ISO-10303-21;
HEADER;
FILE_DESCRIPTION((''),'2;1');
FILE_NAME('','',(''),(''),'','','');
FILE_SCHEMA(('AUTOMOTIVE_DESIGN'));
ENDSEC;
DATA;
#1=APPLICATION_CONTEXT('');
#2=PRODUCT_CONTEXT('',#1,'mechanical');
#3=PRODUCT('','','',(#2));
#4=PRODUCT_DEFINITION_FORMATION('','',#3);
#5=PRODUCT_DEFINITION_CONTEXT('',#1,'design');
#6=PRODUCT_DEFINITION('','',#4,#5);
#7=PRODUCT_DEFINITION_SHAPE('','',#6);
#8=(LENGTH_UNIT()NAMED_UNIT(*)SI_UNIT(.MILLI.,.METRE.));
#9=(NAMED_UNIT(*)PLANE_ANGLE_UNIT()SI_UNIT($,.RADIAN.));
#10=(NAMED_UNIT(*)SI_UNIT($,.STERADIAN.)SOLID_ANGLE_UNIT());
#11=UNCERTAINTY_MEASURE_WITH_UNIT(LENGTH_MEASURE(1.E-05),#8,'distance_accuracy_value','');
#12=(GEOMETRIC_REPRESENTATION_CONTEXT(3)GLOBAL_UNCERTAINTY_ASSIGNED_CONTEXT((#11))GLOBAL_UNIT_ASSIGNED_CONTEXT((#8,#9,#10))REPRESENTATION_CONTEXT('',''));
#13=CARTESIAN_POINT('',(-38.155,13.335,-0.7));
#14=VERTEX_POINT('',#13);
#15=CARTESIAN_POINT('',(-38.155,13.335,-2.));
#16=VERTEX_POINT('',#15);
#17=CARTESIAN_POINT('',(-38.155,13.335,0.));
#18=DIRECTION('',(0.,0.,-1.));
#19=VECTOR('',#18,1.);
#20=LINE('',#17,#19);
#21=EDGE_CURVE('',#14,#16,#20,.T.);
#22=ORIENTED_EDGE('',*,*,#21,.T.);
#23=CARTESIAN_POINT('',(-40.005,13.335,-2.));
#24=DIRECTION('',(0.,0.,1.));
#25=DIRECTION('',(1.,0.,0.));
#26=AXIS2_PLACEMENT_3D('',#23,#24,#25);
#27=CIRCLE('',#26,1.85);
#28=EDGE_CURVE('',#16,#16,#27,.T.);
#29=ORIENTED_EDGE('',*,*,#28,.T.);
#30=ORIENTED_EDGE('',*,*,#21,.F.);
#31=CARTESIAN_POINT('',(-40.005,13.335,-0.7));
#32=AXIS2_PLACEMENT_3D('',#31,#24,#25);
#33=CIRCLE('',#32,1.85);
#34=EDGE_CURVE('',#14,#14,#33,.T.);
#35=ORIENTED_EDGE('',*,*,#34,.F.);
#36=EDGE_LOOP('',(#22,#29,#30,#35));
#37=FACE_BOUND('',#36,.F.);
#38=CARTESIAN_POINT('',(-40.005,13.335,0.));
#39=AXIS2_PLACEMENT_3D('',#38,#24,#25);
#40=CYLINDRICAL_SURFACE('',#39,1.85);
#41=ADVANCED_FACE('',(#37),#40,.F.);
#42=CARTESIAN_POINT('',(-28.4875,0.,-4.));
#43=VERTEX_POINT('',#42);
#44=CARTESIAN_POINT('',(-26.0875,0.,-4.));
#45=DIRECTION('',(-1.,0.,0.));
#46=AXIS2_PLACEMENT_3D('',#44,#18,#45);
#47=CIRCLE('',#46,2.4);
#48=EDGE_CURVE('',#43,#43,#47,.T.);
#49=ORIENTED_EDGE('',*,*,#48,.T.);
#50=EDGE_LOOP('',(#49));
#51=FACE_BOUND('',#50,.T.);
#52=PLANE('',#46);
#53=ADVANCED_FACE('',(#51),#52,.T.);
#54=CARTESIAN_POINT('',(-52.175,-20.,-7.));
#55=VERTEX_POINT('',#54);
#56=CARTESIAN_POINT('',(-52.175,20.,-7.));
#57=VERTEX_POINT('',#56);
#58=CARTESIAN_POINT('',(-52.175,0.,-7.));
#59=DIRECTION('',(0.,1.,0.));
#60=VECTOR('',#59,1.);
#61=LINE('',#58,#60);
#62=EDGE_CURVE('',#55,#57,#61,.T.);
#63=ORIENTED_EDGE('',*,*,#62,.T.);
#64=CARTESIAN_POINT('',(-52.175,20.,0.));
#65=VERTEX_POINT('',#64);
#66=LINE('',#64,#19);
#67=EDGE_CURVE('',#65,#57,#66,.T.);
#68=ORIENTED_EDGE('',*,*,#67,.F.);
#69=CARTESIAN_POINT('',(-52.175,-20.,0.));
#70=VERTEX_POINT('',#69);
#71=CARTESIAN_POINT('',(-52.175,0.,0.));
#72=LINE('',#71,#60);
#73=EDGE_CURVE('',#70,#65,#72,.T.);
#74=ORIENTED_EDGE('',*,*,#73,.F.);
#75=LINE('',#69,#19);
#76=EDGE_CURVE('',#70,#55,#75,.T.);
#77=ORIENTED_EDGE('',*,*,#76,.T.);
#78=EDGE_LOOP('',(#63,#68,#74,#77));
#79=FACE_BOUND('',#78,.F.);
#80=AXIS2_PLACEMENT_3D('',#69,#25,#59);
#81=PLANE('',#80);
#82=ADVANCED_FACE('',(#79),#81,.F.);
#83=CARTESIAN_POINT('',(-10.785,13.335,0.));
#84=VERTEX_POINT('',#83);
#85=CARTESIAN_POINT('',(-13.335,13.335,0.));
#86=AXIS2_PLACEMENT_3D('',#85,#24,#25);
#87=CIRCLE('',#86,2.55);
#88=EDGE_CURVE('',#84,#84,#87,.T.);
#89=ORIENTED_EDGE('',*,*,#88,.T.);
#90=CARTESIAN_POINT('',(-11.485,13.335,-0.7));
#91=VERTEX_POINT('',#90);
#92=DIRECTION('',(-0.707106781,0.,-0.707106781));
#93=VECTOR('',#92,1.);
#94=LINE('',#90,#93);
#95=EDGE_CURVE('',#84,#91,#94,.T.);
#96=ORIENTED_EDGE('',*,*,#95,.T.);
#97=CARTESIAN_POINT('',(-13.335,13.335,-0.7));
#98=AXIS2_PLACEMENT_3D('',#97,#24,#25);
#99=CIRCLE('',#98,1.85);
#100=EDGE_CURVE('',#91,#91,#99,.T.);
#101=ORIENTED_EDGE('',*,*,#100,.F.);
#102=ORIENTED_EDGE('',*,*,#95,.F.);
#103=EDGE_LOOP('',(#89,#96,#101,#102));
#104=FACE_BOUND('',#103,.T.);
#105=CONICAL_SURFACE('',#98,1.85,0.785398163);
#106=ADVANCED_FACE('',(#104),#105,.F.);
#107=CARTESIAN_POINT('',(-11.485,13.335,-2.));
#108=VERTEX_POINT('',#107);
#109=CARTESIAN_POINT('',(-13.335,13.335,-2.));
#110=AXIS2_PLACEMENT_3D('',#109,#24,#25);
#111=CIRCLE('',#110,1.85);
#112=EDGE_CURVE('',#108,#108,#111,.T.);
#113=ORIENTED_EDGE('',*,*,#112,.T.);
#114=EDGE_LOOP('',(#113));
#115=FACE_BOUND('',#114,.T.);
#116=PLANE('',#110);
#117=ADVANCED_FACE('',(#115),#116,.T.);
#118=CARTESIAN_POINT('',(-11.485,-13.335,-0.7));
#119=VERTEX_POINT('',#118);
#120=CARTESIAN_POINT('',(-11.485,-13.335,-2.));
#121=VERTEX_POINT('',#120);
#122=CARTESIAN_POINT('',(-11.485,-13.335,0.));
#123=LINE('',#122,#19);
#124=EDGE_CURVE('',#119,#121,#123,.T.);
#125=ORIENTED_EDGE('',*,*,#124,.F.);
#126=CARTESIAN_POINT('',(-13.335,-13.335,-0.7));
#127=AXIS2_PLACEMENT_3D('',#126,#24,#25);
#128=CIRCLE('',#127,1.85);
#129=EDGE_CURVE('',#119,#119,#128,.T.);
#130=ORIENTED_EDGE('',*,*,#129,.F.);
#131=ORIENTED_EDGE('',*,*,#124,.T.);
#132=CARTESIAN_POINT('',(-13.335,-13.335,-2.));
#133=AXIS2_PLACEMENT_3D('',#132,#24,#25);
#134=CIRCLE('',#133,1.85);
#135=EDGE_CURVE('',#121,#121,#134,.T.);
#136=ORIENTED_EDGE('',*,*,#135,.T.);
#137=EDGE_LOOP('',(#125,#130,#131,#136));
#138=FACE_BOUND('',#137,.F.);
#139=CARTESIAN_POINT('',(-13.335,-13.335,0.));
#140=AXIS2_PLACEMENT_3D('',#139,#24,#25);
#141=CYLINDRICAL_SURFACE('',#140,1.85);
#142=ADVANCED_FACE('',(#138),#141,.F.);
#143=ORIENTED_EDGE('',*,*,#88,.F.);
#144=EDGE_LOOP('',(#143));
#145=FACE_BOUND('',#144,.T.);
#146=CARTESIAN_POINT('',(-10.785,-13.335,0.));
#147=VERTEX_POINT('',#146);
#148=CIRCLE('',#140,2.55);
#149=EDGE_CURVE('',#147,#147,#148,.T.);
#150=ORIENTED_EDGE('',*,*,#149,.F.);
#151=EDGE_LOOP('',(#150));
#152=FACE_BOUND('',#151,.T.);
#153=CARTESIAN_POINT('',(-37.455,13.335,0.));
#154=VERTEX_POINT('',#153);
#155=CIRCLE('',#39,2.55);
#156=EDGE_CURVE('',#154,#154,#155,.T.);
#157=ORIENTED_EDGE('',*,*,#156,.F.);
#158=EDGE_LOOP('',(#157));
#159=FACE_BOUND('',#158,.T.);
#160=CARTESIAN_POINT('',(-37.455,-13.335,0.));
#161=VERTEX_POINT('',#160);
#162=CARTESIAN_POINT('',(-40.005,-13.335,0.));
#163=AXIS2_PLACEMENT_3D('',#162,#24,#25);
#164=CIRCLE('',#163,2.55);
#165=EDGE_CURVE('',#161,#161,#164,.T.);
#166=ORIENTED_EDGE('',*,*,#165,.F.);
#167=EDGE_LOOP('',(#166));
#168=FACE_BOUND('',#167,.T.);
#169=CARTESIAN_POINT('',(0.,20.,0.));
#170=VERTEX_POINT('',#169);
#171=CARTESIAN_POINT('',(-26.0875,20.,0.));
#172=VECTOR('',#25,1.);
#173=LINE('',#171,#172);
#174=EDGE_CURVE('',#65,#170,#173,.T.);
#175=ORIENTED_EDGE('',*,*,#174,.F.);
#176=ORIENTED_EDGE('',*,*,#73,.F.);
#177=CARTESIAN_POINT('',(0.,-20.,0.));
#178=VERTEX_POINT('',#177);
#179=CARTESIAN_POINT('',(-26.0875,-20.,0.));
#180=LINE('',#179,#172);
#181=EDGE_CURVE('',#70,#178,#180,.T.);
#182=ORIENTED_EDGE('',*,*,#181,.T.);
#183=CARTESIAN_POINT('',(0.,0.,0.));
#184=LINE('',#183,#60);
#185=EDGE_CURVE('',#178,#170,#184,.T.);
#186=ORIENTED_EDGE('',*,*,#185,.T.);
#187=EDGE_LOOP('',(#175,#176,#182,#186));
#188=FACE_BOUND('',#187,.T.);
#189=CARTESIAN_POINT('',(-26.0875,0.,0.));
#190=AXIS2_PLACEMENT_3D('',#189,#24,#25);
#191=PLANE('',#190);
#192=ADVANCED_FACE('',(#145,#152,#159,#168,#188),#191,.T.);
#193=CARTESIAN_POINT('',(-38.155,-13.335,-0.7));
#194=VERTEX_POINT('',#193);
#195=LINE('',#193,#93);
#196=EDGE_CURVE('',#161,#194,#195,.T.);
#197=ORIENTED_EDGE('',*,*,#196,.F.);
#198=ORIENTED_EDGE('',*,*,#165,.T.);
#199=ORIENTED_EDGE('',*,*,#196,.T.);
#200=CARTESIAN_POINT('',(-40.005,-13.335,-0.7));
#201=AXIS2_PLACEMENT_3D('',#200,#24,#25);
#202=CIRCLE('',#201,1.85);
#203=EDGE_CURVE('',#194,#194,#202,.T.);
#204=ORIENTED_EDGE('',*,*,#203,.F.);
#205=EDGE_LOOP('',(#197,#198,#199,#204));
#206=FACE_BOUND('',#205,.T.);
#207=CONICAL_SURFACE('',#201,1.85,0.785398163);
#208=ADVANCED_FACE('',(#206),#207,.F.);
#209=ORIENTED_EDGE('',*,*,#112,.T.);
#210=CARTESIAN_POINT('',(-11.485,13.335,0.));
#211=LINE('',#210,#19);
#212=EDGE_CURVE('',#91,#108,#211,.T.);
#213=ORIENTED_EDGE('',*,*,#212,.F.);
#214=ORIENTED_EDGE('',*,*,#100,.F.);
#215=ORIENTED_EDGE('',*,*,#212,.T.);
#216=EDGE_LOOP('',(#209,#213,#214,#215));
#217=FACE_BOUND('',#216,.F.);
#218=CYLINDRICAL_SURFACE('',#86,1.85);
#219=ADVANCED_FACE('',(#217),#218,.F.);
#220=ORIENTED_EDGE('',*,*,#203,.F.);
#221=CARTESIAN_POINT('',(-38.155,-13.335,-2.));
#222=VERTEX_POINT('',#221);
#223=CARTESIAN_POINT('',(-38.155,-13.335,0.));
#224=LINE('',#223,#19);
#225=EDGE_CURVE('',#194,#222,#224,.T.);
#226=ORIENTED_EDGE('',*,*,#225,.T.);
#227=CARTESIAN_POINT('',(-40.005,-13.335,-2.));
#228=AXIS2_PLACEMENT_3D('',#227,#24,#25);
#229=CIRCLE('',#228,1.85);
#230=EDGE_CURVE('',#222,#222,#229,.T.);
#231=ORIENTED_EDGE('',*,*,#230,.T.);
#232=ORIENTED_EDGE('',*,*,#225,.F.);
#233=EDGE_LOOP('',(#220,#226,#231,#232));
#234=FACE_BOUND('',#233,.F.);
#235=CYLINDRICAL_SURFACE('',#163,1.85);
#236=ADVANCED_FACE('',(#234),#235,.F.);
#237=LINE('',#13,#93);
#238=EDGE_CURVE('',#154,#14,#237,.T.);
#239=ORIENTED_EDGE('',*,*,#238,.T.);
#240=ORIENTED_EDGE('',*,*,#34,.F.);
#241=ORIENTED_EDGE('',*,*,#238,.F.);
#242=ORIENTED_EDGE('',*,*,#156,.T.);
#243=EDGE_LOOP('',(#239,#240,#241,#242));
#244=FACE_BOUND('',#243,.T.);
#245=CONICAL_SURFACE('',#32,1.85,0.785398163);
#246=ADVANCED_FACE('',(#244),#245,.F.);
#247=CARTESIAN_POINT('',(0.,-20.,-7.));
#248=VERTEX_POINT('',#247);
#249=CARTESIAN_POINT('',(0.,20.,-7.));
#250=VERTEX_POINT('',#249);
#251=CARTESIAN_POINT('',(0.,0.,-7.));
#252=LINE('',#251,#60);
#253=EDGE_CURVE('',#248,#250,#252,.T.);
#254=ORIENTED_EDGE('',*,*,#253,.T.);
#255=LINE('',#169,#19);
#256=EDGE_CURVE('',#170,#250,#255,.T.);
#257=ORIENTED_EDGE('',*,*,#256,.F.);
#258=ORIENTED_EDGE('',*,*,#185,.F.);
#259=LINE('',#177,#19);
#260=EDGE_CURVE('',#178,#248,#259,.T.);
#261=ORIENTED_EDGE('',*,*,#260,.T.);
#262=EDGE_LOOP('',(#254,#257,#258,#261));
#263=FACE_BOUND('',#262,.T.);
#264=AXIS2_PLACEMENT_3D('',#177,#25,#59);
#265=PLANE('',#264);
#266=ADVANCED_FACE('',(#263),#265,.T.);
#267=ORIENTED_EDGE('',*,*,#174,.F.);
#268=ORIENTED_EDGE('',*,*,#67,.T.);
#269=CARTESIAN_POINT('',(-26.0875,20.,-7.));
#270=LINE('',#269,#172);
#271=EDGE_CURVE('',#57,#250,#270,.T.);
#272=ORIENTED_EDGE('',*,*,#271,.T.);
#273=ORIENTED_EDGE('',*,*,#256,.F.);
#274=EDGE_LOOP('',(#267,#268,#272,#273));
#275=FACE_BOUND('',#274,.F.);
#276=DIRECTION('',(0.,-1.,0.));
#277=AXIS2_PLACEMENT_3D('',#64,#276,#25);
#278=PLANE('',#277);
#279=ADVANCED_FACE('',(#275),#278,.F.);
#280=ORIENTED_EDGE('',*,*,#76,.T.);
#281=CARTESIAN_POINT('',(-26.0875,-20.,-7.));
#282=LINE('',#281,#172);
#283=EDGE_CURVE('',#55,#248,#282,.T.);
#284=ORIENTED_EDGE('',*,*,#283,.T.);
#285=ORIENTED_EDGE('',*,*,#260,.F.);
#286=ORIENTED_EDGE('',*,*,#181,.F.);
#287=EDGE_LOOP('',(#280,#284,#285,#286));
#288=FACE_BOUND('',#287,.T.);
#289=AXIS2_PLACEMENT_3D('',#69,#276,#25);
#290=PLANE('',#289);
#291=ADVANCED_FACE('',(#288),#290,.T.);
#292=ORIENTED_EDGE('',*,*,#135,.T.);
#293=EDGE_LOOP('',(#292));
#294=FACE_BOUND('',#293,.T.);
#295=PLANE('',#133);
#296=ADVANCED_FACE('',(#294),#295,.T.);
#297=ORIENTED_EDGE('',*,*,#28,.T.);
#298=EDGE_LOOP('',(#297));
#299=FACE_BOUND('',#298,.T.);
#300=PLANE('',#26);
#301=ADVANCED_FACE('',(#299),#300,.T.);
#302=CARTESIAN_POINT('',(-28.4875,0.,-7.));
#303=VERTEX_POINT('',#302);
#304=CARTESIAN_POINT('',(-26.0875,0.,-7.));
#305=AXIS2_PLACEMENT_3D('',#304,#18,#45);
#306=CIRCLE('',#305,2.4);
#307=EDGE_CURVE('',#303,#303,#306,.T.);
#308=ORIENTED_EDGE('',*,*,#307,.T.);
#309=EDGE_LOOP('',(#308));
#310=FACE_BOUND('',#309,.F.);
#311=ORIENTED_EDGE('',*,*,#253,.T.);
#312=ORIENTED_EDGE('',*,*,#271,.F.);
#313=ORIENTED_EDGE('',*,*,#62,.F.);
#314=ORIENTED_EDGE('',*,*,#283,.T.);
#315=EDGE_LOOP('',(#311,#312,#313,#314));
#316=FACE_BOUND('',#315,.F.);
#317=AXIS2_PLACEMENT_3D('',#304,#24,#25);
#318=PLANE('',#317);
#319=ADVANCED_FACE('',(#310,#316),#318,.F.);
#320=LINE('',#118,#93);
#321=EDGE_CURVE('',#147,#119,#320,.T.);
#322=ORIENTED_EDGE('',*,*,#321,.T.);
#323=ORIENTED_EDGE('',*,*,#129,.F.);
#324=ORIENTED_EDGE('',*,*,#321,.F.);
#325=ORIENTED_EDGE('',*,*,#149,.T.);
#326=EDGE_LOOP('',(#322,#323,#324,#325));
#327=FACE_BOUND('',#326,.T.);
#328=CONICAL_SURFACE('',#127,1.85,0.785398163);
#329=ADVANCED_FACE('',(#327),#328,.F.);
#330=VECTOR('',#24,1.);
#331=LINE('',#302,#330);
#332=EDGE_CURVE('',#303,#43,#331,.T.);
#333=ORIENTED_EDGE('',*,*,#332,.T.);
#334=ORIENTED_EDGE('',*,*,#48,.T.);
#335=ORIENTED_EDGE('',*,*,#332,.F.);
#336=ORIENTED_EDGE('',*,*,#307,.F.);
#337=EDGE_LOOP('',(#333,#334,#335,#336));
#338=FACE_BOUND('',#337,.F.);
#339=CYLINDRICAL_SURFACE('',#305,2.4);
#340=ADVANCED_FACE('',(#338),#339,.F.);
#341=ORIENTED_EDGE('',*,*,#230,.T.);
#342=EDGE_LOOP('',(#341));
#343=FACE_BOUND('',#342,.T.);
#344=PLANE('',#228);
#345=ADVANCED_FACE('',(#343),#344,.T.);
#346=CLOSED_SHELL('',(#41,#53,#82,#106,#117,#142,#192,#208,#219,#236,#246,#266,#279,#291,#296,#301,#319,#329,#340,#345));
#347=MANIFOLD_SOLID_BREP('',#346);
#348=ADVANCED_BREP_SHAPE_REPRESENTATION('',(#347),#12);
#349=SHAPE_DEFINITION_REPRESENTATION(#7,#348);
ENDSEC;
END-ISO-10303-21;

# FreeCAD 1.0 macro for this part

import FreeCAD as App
import Part
import Sketcher

V = App.Vector


def edges_at(feature, points):
    """Names of the edges that pass closest to the given points."""
    edges = feature.Shape.Edges
    near = lambda p: min(range(len(edges)), key=lambda i: edges[i].distToShape(Part.Vertex(*p))[0])
    return sorted({f"Edge{near(p) + 1}" for p in points})


def add_polygon(sketch, points):
    """Adds a closed chain of lines whose ends are joined by coincident constraints."""
    first, n = sketch.GeometryCount, len(points)
    for a, b in zip(points, points[1:] + points[:1]):
        sketch.addGeometry(Part.LineSegment(App.Vector(*a, 0), App.Vector(*b, 0)), False)
    for i in range(n):
        sketch.addConstraint(Sketcher.Constraint("Coincident", first + i, 2, first + (i + 1) % n, 1))

doc = App.newDocument("Part")
body = doc.addObject("PartDesign::Body", "Body")

# Sketch on XY plane
sketch1 = body.newObject("Sketcher::SketchObject", "Sketch")
sketch1.AttachmentSupport = (doc.getObject("XY_Plane"), [""])
sketch1.MapMode = "FlatFace"
add_polygon(sketch1, [(-52.175, 20), (-52.175, -20), (0, -20), (0, 20)])  # lines 0-3
sketch1.addConstraint([
    Sketcher.Constraint("Vertical", 0),
    Sketcher.Constraint("Horizontal", 1),
    Sketcher.Constraint("Vertical", 2),
    Sketcher.Constraint("Horizontal", 3),
    Sketcher.Constraint("Symmetric", 1, 2, 2, 2, -1, 1),
    Sketcher.Constraint("DistanceY", 0, 2, 0, 1, 40.0),
    Sketcher.Constraint("DistanceX", 1, 1, 1, 2, 52.175),
])
pad1 = body.newObject("PartDesign::Pad", "Pad")
pad1.Profile = sketch1
pad1.Length = 7
pad1.Reversed = True

# Sketch on XY plane
sketch2 = body.newObject("Sketcher::SketchObject", "Sketch001")
sketch2.AttachmentSupport = (doc.getObject("XY_Plane"), [""])
sketch2.MapMode = "FlatFace"
sketch2.addGeometry([
    Part.Circle(V(-40.005, 13.335, 0), V(0, 0, 1), 1.85),
    Part.Circle(V(-13.335, 13.335, 0), V(0, 0, 1), 1.85),
    Part.Circle(V(-40.005, -13.335, 0), V(0, 0, 1), 1.85),
    Part.Circle(V(-13.335, -13.335, 0), V(0, 0, 1), 1.85),
], False)
sketch2.addConstraint([
    Sketcher.Constraint("Equal", 0, 1),
    Sketcher.Constraint("Equal", 1, 2),
    Sketcher.Constraint("Equal", 2, 3),
    Sketcher.Constraint("Symmetric", 0, 3, 2, 3, -1),
    Sketcher.Constraint("Symmetric", 1, 3, 3, 3, -1),
    Sketcher.Constraint("Horizontal", 0, 3, 1, 3),
    Sketcher.Constraint("Diameter", 0, 3.7),
    Sketcher.Constraint("DistanceX", 0, 3, 1, 3, 26.67),
    Sketcher.Constraint("DistanceY", 2, 3, 0, 3, 26.67),
    Sketcher.Constraint("DistanceX", 0, 3, -1, 1, 40.005),
])
pocket1 = body.newObject("PartDesign::Pocket", "Pocket")
pocket1.Profile = sketch2
pocket1.Length = 2

# Sketch on XY plane
sketch3 = body.newObject("Sketcher::SketchObject", "Sketch002")
sketch3.AttachmentSupport = (doc.getObject("XY_Plane"), [""])
sketch3.MapMode = "FlatFace"
sketch3.AttachmentOffset = App.Placement(V(0, 0, -7), App.Rotation())
sketch3.addGeometry(Part.Circle(V(-26.0875, 0, 0), V(0, 0, 1), 2.4), False)
sketch3.addConstraint([
    Sketcher.Constraint("PointOnObject", 0, 3, -1),
    Sketcher.Constraint("Diameter", 0, 4.8),
    Sketcher.Constraint("DistanceX", 0, 3, -1, 1, 26.0875),
])
pocket2 = body.newObject("PartDesign::Pocket", "Pocket001")
pocket2.Profile = sketch3
pocket2.Length = 3
pocket2.Reversed = True
doc.recompute()

chamfer = body.newObject("PartDesign::Chamfer", "Chamfer")
chamfer.Base = (pocket2, edges_at(pocket2, [
    (-15.185, -13.335, 0),
    (-41.855, -13.335, 0),
    (-41.855, 13.335, 0),
    (-15.185, 13.335, 0),
]))
chamfer.Size = 0.7

doc.recompute()
